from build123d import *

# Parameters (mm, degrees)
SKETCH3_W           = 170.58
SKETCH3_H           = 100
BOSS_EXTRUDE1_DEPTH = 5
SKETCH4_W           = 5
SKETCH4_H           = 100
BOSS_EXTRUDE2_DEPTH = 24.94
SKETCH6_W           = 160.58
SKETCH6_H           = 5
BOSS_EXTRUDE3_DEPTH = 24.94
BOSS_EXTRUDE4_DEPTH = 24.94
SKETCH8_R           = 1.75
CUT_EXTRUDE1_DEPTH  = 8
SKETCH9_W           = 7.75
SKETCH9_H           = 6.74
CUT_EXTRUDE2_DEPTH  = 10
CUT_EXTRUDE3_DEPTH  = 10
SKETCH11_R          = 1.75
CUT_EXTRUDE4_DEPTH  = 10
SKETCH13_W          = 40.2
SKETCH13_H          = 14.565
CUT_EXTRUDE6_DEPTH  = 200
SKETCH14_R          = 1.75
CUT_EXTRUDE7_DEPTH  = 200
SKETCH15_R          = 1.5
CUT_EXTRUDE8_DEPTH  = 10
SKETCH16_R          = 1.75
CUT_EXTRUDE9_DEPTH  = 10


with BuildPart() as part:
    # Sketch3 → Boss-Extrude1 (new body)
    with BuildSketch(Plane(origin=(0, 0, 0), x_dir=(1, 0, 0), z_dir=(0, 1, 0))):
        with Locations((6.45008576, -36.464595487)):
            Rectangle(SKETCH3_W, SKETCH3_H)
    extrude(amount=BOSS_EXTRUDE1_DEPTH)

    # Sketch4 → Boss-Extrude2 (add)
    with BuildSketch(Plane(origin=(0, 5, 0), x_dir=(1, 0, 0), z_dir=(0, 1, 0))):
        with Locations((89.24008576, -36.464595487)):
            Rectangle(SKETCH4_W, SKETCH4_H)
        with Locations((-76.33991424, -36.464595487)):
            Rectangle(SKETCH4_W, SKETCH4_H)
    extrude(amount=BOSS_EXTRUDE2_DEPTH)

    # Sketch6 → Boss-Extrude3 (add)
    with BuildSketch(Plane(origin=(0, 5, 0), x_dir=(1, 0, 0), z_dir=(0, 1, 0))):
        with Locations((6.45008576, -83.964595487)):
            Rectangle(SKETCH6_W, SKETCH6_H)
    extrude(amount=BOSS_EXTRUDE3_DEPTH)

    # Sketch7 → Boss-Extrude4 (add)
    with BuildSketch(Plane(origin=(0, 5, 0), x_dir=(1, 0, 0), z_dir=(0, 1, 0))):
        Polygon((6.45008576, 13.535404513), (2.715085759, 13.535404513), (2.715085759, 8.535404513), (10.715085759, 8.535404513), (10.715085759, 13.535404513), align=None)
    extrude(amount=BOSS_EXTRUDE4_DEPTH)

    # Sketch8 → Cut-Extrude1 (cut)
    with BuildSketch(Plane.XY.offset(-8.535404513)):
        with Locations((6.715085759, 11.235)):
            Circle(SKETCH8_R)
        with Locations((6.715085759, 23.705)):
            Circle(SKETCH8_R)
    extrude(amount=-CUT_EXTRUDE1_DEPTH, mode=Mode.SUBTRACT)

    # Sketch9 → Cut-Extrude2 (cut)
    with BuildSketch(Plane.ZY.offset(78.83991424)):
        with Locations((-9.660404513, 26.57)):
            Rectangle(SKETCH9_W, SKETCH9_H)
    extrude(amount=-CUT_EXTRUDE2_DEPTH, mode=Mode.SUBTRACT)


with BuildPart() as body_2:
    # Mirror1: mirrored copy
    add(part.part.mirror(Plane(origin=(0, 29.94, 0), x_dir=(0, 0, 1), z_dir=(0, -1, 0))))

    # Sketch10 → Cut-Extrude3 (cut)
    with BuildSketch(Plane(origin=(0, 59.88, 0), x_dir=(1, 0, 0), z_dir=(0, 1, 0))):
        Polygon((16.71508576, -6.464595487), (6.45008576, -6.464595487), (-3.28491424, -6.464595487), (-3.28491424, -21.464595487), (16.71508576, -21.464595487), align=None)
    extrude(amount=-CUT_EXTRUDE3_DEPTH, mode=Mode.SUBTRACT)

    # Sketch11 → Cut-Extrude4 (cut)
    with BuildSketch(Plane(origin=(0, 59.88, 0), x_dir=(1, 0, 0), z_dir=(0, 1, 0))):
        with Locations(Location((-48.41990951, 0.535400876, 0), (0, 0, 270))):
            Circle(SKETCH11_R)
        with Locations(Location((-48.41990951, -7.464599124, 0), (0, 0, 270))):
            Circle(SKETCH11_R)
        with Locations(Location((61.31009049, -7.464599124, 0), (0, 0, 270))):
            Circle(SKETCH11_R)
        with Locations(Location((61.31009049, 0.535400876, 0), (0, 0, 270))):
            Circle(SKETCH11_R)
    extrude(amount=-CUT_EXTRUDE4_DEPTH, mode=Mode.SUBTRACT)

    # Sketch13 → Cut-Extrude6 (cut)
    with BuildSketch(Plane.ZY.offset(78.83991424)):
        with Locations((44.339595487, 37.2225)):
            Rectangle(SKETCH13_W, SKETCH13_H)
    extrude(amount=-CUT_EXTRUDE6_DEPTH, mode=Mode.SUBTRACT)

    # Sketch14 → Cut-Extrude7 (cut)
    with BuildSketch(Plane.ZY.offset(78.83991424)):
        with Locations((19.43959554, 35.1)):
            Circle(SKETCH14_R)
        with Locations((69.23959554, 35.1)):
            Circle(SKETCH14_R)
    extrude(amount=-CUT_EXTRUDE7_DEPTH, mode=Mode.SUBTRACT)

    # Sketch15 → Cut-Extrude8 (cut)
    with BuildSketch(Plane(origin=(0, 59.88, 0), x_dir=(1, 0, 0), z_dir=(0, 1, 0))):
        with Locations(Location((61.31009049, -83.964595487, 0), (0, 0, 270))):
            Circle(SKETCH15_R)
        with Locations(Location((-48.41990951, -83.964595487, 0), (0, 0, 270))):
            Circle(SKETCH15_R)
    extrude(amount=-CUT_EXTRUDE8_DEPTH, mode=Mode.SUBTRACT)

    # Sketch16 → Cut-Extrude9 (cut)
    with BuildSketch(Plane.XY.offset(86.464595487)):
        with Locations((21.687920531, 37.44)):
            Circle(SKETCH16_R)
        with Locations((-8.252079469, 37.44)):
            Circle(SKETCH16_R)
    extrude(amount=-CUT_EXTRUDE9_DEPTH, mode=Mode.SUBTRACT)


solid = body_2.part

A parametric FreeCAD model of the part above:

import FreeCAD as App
import Part
import Sketcher

V = App.Vector
Q = App.Units.Quantity

doc = App.newDocument("Part")
body = doc.addObject("PartDesign::Body", "Body")

# Sketch on XZ plane
sketch1 = body.newObject("Sketcher::SketchObject", "Sketch")
sketch1.AttachmentSupport = (doc.getObject("XZ_Plane"), [""])
sketch1.MapMode = "FlatFace"
sketch1.addGeometry(Part.LineSegment(V(-79, -14, 0), V(-79, 86, 0)), False)
sketch1.addGeometry(Part.LineSegment(V(-79, 86, 0), V(92, 86, 0)), False)
sketch1.addGeometry(Part.LineSegment(V(92, 86, 0), V(92, -14, 0)), False)
sketch1.addGeometry(Part.LineSegment(V(92, -14, 0), V(-79, -14, 0)), False)
sketch1.addConstraint(Sketcher.Constraint("Coincident", 0, 2, 1, 1))
sketch1.addConstraint(Sketcher.Constraint("Coincident", 1, 2, 2, 1))
sketch1.addConstraint(Sketcher.Constraint("Coincident", 2, 2, 3, 1))
sketch1.addConstraint(Sketcher.Constraint("Coincident", 3, 2, 0, 1))
sketch1.addConstraint(Sketcher.Constraint("Vertical", 0))
sketch1.addConstraint(Sketcher.Constraint("Horizontal", 1))
sketch1.addConstraint(Sketcher.Constraint("Vertical", 2))
sketch1.addConstraint(Sketcher.Constraint("Horizontal", 3))
sketch1.addConstraint(Sketcher.Constraint("DistanceY", 0, 1, 0, 2, Q("100 mm")))
sketch1.addConstraint(Sketcher.Constraint("DistanceX", 1, 1, 1, 2, Q("170.58 mm")))
sketch1.addConstraint(Sketcher.Constraint("DistanceX", 0, 2, -1, 1, Q("78.839914 mm")))
sketch1.addConstraint(Sketcher.Constraint("DistanceY", -1, 1, 0, 2, Q("86.464595 mm")))
pad1 = body.newObject("PartDesign::Pad", "Pad")
pad1.Profile = sketch1
pad1.Length = 5
pad1.Reversed = True

# Sketch on XZ plane
sketch2 = body.newObject("Sketcher::SketchObject", "Sketch001")
sketch2.AttachmentSupport = (doc.getObject("XZ_Plane"), [""])
sketch2.MapMode = "FlatFace"
sketch2.AttachmentOffset = App.Placement(V(0, 0, -5), App.Rotation())
sketch2.addGeometry(Part.LineSegment(V(87, -14, 0), V(87, 86, 0)), False)
sketch2.addGeometry(Part.LineSegment(V(87, 86, 0), V(92, 86, 0)), False)
sketch2.addGeometry(Part.LineSegment(V(92, 86, 0), V(92, -14, 0)), False)
sketch2.addGeometry(Part.LineSegment(V(92, -14, 0), V(87, -14, 0)), False)
sketch2.addGeometry(Part.LineSegment(V(-79, -14, 0), V(-79, 86, 0)), False)
sketch2.addGeometry(Part.LineSegment(V(-79, 86, 0), V(-74, 86, 0)), False)
sketch2.addGeometry(Part.LineSegment(V(-74, 86, 0), V(-74, -14, 0)), False)
sketch2.addGeometry(Part.LineSegment(V(-74, -14, 0), V(-79, -14, 0)), False)
sketch2.addConstraint(Sketcher.Constraint("Coincident", 0, 2, 1, 1))
sketch2.addConstraint(Sketcher.Constraint("Coincident", 1, 2, 2, 1))
sketch2.addConstraint(Sketcher.Constraint("Coincident", 2, 2, 3, 1))
sketch2.addConstraint(Sketcher.Constraint("Coincident", 3, 2, 0, 1))
sketch2.addConstraint(Sketcher.Constraint("Coincident", 4, 2, 5, 1))
sketch2.addConstraint(Sketcher.Constraint("Coincident", 5, 2, 6, 1))
sketch2.addConstraint(Sketcher.Constraint("Coincident", 6, 2, 7, 1))
sketch2.addConstraint(Sketcher.Constraint("Coincident", 7, 2, 4, 1))
sketch2.addConstraint(Sketcher.Constraint("Vertical", 0))
sketch2.addConstraint(Sketcher.Constraint("Horizontal", 1))
sketch2.addConstraint(Sketcher.Constraint("Vertical", 2))
sketch2.addConstraint(Sketcher.Constraint("Horizontal", 3))
sketch2.addConstraint(Sketcher.Constraint("Vertical", 4))
sketch2.addConstraint(Sketcher.Constraint("Horizontal", 5))
sketch2.addConstraint(Sketcher.Constraint("Vertical", 6))
sketch2.addConstraint(Sketcher.Constraint("Horizontal", 7))
sketch2.addConstraint(Sketcher.Constraint("Horizontal", 1, 2, 4, 2))
sketch2.addConstraint(Sketcher.Constraint("Horizontal", 3, 2, 6, 2))
sketch2.addConstraint(Sketcher.Constraint("Equal", 3, 5))
sketch2.addConstraint(Sketcher.Constraint("DistanceX", 1, 1, 1, 2, Q("5 mm")))
sketch2.addConstraint(Sketcher.Constraint("DistanceY", 0, 1, 0, 2, Q("100 mm")))
sketch2.addConstraint(Sketcher.Constraint("DistanceX", 4, 2, 0, 2, Q("165.58 mm")))
sketch2.addConstraint(Sketcher.Constraint("DistanceX", -1, 1, 0, 2, Q("86.740086 mm")))
sketch2.addConstraint(Sketcher.Constraint("DistanceY", -1, 1, 0, 2, Q("86.464595 mm")))
pad2 = body.newObject("PartDesign::Pad", "Pad001")
pad2.Profile = sketch2
pad2.Length = 24.94
pad2.Reversed = True

# Sketch on XZ plane
sketch3 = body.newObject("Sketcher::SketchObject", "Sketch002")
sketch3.AttachmentSupport = (doc.getObject("XZ_Plane"), [""])
sketch3.MapMode = "FlatFace"
sketch3.AttachmentOffset = App.Placement(V(0, 0, -5), App.Rotation())
sketch3.addGeometry(Part.LineSegment(V(-74, 81, 0), V(-74, 86, 0)), False)
sketch3.addGeometry(Part.LineSegment(V(-74, 86, 0), V(87, 86, 0)), False)
sketch3.addGeometry(Part.LineSegment(V(87, 86, 0), V(87, 81, 0)), False)
sketch3.addGeometry(Part.LineSegment(V(87, 81, 0), V(-74, 81, 0)), False)
sketch3.addConstraint(Sketcher.Constraint("Coincident", 0, 2, 1, 1))
sketch3.addConstraint(Sketcher.Constraint("Coincident", 1, 2, 2, 1))
sketch3.addConstraint(Sketcher.Constraint("Coincident", 2, 2, 3, 1))
sketch3.addConstraint(Sketcher.Constraint("Coincident", 3, 2, 0, 1))
sketch3.addConstraint(Sketcher.Constraint("Vertical", 0))
sketch3.addConstraint(Sketcher.Constraint("Horizontal", 1))
sketch3.addConstraint(Sketcher.Constraint("Vertical", 2))
sketch3.addConstraint(Sketcher.Constraint("Horizontal", 3))
sketch3.addConstraint(Sketcher.Constraint("DistanceY", 0, 1, 0, 2, Q("5 mm")))
sketch3.addConstraint(Sketcher.Constraint("DistanceX", 1, 1, 1, 2, Q("160.58 mm")))
sketch3.addConstraint(Sketcher.Constraint("DistanceX", 0, 2, -1, 1, Q("73.839914 mm")))
sketch3.addConstraint(Sketcher.Constraint("DistanceY", -1, 1, 0, 2, Q("86.464595 mm")))
pad3 = body.newObject("PartDesign::Pad", "Pad002")
pad3.Profile = sketch3
pad3.Length = 24.94
pad3.Reversed = True

# Sketch on XZ plane
sketch4 = body.newObject("Sketcher::SketchObject", "Sketch003")
sketch4.AttachmentSupport = (doc.getObject("XZ_Plane"), [""])
sketch4.MapMode = "FlatFace"
sketch4.AttachmentOffset = App.Placement(V(0, 0, -5), App.Rotation())
sketch4.addGeometry(Part.LineSegment(V(3, -14, 0), V(3, -9, 0)), False)
sketch4.addGeometry(Part.LineSegment(V(3, -9, 0), V(11, -9, 0)), False)
sketch4.addGeometry(Part.LineSegment(V(11, -9, 0), V(11, -14, 0)), False)
sketch4.addGeometry(Part.LineSegment(V(11, -14, 0), V(3, -14, 0)), False)
sketch4.addConstraint(Sketcher.Constraint("Coincident", 0, 2, 1, 1))
sketch4.addConstraint(Sketcher.Constraint("Coincident", 1, 2, 2, 1))
sketch4.addConstraint(Sketcher.Constraint("Coincident", 2, 2, 3, 1))
sketch4.addConstraint(Sketcher.Constraint("Coincident", 3, 2, 0, 1))
sketch4.addConstraint(Sketcher.Constraint("Vertical", 0))
sketch4.addConstraint(Sketcher.Constraint("Horizontal", 1))
sketch4.addConstraint(Sketcher.Constraint("Vertical", 2))
sketch4.addConstraint(Sketcher.Constraint("Horizontal", 3))
sketch4.addConstraint(Sketcher.Constraint("DistanceX", 1, 1, 1, 2, Q("8 mm")))
sketch4.addConstraint(Sketcher.Constraint("DistanceY", 0, 1, 0, 2, Q("5 mm")))
sketch4.addConstraint(Sketcher.Constraint("DistanceX", -1, 1, 0, 2, Q("2.715086 mm")))
sketch4.addConstraint(Sketcher.Constraint("DistanceY", 0, 2, -1, 1, Q("8.535405 mm")))
pad4 = body.newObject("PartDesign::Pad", "Pad003")
pad4.Profile = sketch4
pad4.Length = 24.94
pad4.Reversed = True

# Sketch on XY plane
sketch5 = body.newObject("Sketcher::SketchObject", "Sketch004")
sketch5.AttachmentSupport = (doc.getObject("XY_Plane"), [""])
sketch5.MapMode = "FlatFace"
sketch5.AttachmentOffset = App.Placement(V(0, 0, -8.535405), App.Rotation())
sketch5.addGeometry(Part.Circle(V(6.7, 11.2, 0), V(0, 0, 1), 1.8), False)
sketch5.addGeometry(Part.Circle(V(6.7, 23.7, 0), V(0, 0, 1), 1.8), False)
sketch5.addConstraint(Sketcher.Constraint("Equal", 0, 1))
sketch5.addConstraint(Sketcher.Constraint("Vertical", 0, 3, 1, 3))
sketch5.addConstraint(Sketcher.Constraint("Diameter", 0, Q("3.5 mm")))
sketch5.addConstraint(Sketcher.Constraint("DistanceY", 0, 3, 1, 3, Q("12.47 mm")))
sketch5.addConstraint(Sketcher.Constraint("DistanceY", -1, 1, 0, 3, Q("11.235 mm")))
sketch5.addConstraint(Sketcher.Constraint("DistanceX", -1, 1, 0, 3, Q("6.715086 mm")))
pocket1 = body.newObject("PartDesign::Pocket", "Pocket")
pocket1.Profile = sketch5
pocket1.Length = 8

# Sketch on YZ plane
sketch6 = body.newObject("Sketcher::SketchObject", "Sketch005")
sketch6.AttachmentSupport = (doc.getObject("YZ_Plane"), [""])
sketch6.MapMode = "FlatFace"
sketch6.AttachmentOffset = App.Placement(V(0, 0, -78.839914), App.Rotation())
sketch6.addGeometry(Part.LineSegment(V(30, -14, 0), V(23, -14, 0)), False)
sketch6.addGeometry(Part.LineSegment(V(23, -14, 0), V(23, -6, 0)), False)
sketch6.addGeometry(Part.LineSegment(V(23, -6, 0), V(30, -6, 0)), False)
sketch6.addGeometry(Part.LineSegment(V(30, -6, 0), V(30, -14, 0)), False)
sketch6.addConstraint(Sketcher.Constraint("Coincident", 0, 2, 1, 1))
sketch6.addConstraint(Sketcher.Constraint("Coincident", 1, 2, 2, 1))
sketch6.addConstraint(Sketcher.Constraint("Coincident", 2, 2, 3, 1))
sketch6.addConstraint(Sketcher.Constraint("Coincident", 3, 2, 0, 1))
sketch6.addConstraint(Sketcher.Constraint("Horizontal", 0))
sketch6.addConstraint(Sketcher.Constraint("Vertical", 1))
sketch6.addConstraint(Sketcher.Constraint("Horizontal", 2))
sketch6.addConstraint(Sketcher.Constraint("Vertical", 3))
sketch6.addConstraint(Sketcher.Constraint("DistanceX", 0, 2, 0, 1, Q("6.74 mm")))
sketch6.addConstraint(Sketcher.Constraint("DistanceY", 1, 1, 1, 2, Q("7.75 mm")))
sketch6.addConstraint(Sketcher.Constraint("DistanceX", -1, 1, 0, 2, Q("23.2 mm")))
sketch6.addConstraint(Sketcher.Constraint("DistanceY", 0, 2, -1, 1, Q("13.535405 mm")))
pocket2 = body.newObject("PartDesign::Pocket", "Pocket001")
pocket2.Profile = sketch6
pocket2.Length = 10
pocket2.Reversed = True
body2 = doc.addObject("PartDesign::Body", "Body001")
doc.recompute()

mirroring = doc.addObject("Part::Mirroring", "Mirroring")
mirroring.Source = body
mirroring.Base = V(0, 29.94, 0)
mirroring.Normal = V(0, -1, 0)
body2.BaseFeature = mirroring
doc.recompute()

# Sketch on XZ plane
sketch7 = body2.newObject("Sketcher::SketchObject", "Sketch006")
sketch7.AttachmentSupport = (doc.getObject("XZ_Plane001"), [""])
sketch7.MapMode = "FlatFace"
sketch7.AttachmentOffset = App.Placement(V(0, 0, -59.88), App.Rotation())
sketch7.addGeometry(Part.LineSegment(V(17, 6, 0), V(-3, 6, 0)), False)
sketch7.addGeometry(Part.LineSegment(V(-3, 6, 0), V(-3, 21, 0)), False)
sketch7.addGeometry(Part.LineSegment(V(-3, 21, 0), V(17, 21, 0)), False)
sketch7.addGeometry(Part.LineSegment(V(17, 21, 0), V(17, 6, 0)), False)
sketch7.addConstraint(Sketcher.Constraint("Coincident", 0, 2, 1, 1))
sketch7.addConstraint(Sketcher.Constraint("Coincident", 1, 2, 2, 1))
sketch7.addConstraint(Sketcher.Constraint("Coincident", 2, 2, 3, 1))
sketch7.addConstraint(Sketcher.Constraint("Coincident", 3, 2, 0, 1))
sketch7.addConstraint(Sketcher.Constraint("Horizontal", 0))
sketch7.addConstraint(Sketcher.Constraint("Vertical", 1))
sketch7.addConstraint(Sketcher.Constraint("Horizontal", 2))
sketch7.addConstraint(Sketcher.Constraint("Vertical", 3))
sketch7.addConstraint(Sketcher.Constraint("DistanceX", 0, 2, 0, 1, Q("20 mm")))
sketch7.addConstraint(Sketcher.Constraint("DistanceY", 1, 1, 1, 2, Q("15 mm")))
sketch7.addConstraint(Sketcher.Constraint("DistanceX", 0, 2, -1, 1, Q("3.284914 mm")))
sketch7.addConstraint(Sketcher.Constraint("DistanceY", -1, 1, 0, 2, Q("6.464595 mm")))
pocket3 = body2.newObject("PartDesign::Pocket", "Pocket002")
pocket3.Profile = sketch7
pocket3.Length = 10
pocket3.Reversed = True

# Sketch on XZ plane
sketch8 = body2.newObject("Sketcher::SketchObject", "Sketch007")
sketch8.AttachmentSupport = (doc.getObject("XZ_Plane001"), [""])
sketch8.MapMode = "FlatFace"
sketch8.AttachmentOffset = App.Placement(V(0, 0, -59.88), App.Rotation())
sketch8.addGeometry(Part.Circle(V(-48.4, -0.5, 0), V(0, 0, 1), 1.8), False)
sketch8.addGeometry(Part.Circle(V(-48.4, 7.5, 0), V(0, 0, 1), 1.8), False)
sketch8.addGeometry(Part.Circle(V(61.3, 7.5, 0), V(0, 0, 1), 1.8), False)
sketch8.addGeometry(Part.Circle(V(61.3, -0.5, 0), V(0, 0, 1), 1.8), False)
sketch8.addConstraint(Sketcher.Constraint("Equal", 0, 1))
sketch8.addConstraint(Sketcher.Constraint("Equal", 1, 2))
sketch8.addConstraint(Sketcher.Constraint("Equal", 2, 3))
sketch8.addConstraint(Sketcher.Constraint("Horizontal", 1, 3, 2, 3))
sketch8.addConstraint(Sketcher.Constraint("Horizontal", 0, 3, 3, 3))
sketch8.addConstraint(Sketcher.Constraint("Vertical", 0, 3, 1, 3))
sketch8.addConstraint(Sketcher.Constraint("Vertical", 2, 3, 3, 3))
sketch8.addConstraint(Sketcher.Constraint("Diameter", 0, Q("3.5 mm")))
sketch8.addConstraint(Sketcher.Constraint("DistanceY", 0, 3, 1, 3, Q("8 mm")))
sketch8.addConstraint(Sketcher.Constraint("DistanceX", 1, 3, 2, 3, Q("109.73 mm")))
sketch8.addConstraint(Sketcher.Constraint("DistanceY", 0, 3, -1, 1, Q("0.535401 mm")))
sketch8.addConstraint(Sketcher.Constraint("DistanceX", 0, 3, -1, 1, Q("48.41991 mm")))
pocket4 = body2.newObject("PartDesign::Pocket", "Pocket003")
pocket4.Profile = sketch8
pocket4.Length = 10
pocket4.Reversed = True

# Sketch on YZ plane
sketch9 = body2.newObject("Sketcher::SketchObject", "Sketch008")
sketch9.AttachmentSupport = (doc.getObject("YZ_Plane001"), [""])
sketch9.MapMode = "FlatFace"
sketch9.AttachmentOffset = App.Placement(V(0, 0, -78.839914), App.Rotation())
sketch9.addGeometry(Part.LineSegment(V(45, 24, 0), V(30, 24, 0)), False)
sketch9.addGeometry(Part.LineSegment(V(30, 24, 0), V(30, 64, 0)), False)
sketch9.addGeometry(Part.LineSegment(V(30, 64, 0), V(45, 64, 0)), False)
sketch9.addGeometry(Part.LineSegment(V(45, 64, 0), V(45, 24, 0)), False)
sketch9.addConstraint(Sketcher.Constraint("Coincident", 0, 2, 1, 1))
sketch9.addConstraint(Sketcher.Constraint("Coincident", 1, 2, 2, 1))
sketch9.addConstraint(Sketcher.Constraint("Coincident", 2, 2, 3, 1))
sketch9.addConstraint(Sketcher.Constraint("Coincident", 3, 2, 0, 1))
sketch9.addConstraint(Sketcher.Constraint("Horizontal", 0))
sketch9.addConstraint(Sketcher.Constraint("Vertical", 1))
sketch9.addConstraint(Sketcher.Constraint("Horizontal", 2))
sketch9.addConstraint(Sketcher.Constraint("Vertical", 3))
sketch9.addConstraint(Sketcher.Constraint("DistanceY", 1, 1, 1, 2, Q("40.2 mm")))
sketch9.addConstraint(Sketcher.Constraint("DistanceX", 0, 2, 0, 1, Q("14.565 mm")))
sketch9.addConstraint(Sketcher.Constraint("DistanceX", -1, 1, 0, 2, Q("29.94 mm")))
sketch9.addConstraint(Sketcher.Constraint("DistanceY", -1, 1, 0, 2, Q("24.239595 mm")))
pocket5 = body2.newObject("PartDesign::Pocket", "Pocket004")
pocket5.Profile = sketch9
pocket5.Length = 200
pocket5.Reversed = True

# Sketch on YZ plane
sketch10 = body2.newObject("Sketcher::SketchObject", "Sketch009")
sketch10.AttachmentSupport = (doc.getObject("YZ_Plane001"), [""])
sketch10.MapMode = "FlatFace"
sketch10.AttachmentOffset = App.Placement(V(0, 0, -78.839914), App.Rotation())
sketch10.addGeometry(Part.Circle(V(35.1, 19.4, 0), V(0, 0, 1), 1.8), False)
sketch10.addGeometry(Part.Circle(V(35.1, 69.2, 0), V(0, 0, 1), 1.8), False)
sketch10.addConstraint(Sketcher.Constraint("Equal", 0, 1))
sketch10.addConstraint(Sketcher.Constraint("Vertical", 0, 3, 1, 3))
sketch10.addConstraint(Sketcher.Constraint("Diameter", 0, Q("3.5 mm")))
sketch10.addConstraint(Sketcher.Constraint("DistanceX", -1, 1, 0, 3, Q("35.1 mm")))
sketch10.addConstraint(Sketcher.Constraint("DistanceY", 0, 3, 1, 3, Q("49.8 mm")))
sketch10.addConstraint(Sketcher.Constraint("DistanceY", -1, 1, 0, 3, Q("19.439596 mm")))
pocket6 = body2.newObject("PartDesign::Pocket", "Pocket005")
pocket6.Profile = sketch10
pocket6.Length = 200
pocket6.Reversed = True

# Sketch on XZ plane
sketch11 = body2.newObject("Sketcher::SketchObject", "Sketch010")
sketch11.AttachmentSupport = (doc.getObject("XZ_Plane001"), [""])
sketch11.MapMode = "FlatFace"
sketch11.AttachmentOffset = App.Placement(V(0, 0, -59.88), App.Rotation())
sketch11.addGeometry(Part.Circle(V(61.3, 84, 0), V(0, 0, 1), 1.5), False)
sketch11.addGeometry(Part.Circle(V(-48.4, 84, 0), V(0, 0, 1), 1.5), False)
sketch11.addConstraint(Sketcher.Constraint("Equal", 0, 1))
sketch11.addConstraint(Sketcher.Constraint("Horizontal", 0, 3, 1, 3))
sketch11.addConstraint(Sketcher.Constraint("Diameter", 0, Q("3 mm")))
sketch11.addConstraint(Sketcher.Constraint("DistanceX", 1, 3, 0, 3, Q("109.73 mm")))
sketch11.addConstraint(Sketcher.Constraint("DistanceX", -1, 1, 0, 3, Q("61.31009 mm")))
sketch11.addConstraint(Sketcher.Constraint("DistanceY", -1, 1, 0, 3, Q("83.964595 mm")))
pocket7 = body2.newObject("PartDesign::Pocket", "Pocket006")
pocket7.Profile = sketch11
pocket7.Length = 10
pocket7.Reversed = True

# Sketch on XY plane
sketch12 = body2.newObject("Sketcher::SketchObject", "Sketch011")
sketch12.AttachmentSupport = (doc.getObject("XY_Plane001"), [""])
sketch12.MapMode = "FlatFace"
sketch12.AttachmentOffset = App.Placement(V(0, 0, 86.464595), App.Rotation())
sketch12.addGeometry(Part.Circle(V(21.7, 37.4, 0), V(0, 0, 1), 1.8), False)
sketch12.addGeometry(Part.Circle(V(-8.3, 37.4, 0), V(0, 0, 1), 1.8), False)
sketch12.addConstraint(Sketcher.Constraint("Equal", 0, 1))
sketch12.addConstraint(Sketcher.Constraint("Horizontal", 0, 3, 1, 3))
sketch12.addConstraint(Sketcher.Constraint("Diameter", 0, Q("3.5 mm")))
sketch12.addConstraint(Sketcher.Constraint("DistanceY", -1, 1, 0, 3, Q("37.44 mm")))
sketch12.addConstraint(Sketcher.Constraint("DistanceX", 1, 3, 0, 3, Q("29.94 mm")))
sketch12.addConstraint(Sketcher.Constraint("DistanceX", -1, 1, 0, 3, Q("21.687921 mm")))
pocket8 = body2.newObject("PartDesign::Pocket", "Pocket007")
pocket8.Profile = sketch12
pocket8.Length = 10
body.Visibility = False
mirroring.Visibility = False

doc.recompute()
